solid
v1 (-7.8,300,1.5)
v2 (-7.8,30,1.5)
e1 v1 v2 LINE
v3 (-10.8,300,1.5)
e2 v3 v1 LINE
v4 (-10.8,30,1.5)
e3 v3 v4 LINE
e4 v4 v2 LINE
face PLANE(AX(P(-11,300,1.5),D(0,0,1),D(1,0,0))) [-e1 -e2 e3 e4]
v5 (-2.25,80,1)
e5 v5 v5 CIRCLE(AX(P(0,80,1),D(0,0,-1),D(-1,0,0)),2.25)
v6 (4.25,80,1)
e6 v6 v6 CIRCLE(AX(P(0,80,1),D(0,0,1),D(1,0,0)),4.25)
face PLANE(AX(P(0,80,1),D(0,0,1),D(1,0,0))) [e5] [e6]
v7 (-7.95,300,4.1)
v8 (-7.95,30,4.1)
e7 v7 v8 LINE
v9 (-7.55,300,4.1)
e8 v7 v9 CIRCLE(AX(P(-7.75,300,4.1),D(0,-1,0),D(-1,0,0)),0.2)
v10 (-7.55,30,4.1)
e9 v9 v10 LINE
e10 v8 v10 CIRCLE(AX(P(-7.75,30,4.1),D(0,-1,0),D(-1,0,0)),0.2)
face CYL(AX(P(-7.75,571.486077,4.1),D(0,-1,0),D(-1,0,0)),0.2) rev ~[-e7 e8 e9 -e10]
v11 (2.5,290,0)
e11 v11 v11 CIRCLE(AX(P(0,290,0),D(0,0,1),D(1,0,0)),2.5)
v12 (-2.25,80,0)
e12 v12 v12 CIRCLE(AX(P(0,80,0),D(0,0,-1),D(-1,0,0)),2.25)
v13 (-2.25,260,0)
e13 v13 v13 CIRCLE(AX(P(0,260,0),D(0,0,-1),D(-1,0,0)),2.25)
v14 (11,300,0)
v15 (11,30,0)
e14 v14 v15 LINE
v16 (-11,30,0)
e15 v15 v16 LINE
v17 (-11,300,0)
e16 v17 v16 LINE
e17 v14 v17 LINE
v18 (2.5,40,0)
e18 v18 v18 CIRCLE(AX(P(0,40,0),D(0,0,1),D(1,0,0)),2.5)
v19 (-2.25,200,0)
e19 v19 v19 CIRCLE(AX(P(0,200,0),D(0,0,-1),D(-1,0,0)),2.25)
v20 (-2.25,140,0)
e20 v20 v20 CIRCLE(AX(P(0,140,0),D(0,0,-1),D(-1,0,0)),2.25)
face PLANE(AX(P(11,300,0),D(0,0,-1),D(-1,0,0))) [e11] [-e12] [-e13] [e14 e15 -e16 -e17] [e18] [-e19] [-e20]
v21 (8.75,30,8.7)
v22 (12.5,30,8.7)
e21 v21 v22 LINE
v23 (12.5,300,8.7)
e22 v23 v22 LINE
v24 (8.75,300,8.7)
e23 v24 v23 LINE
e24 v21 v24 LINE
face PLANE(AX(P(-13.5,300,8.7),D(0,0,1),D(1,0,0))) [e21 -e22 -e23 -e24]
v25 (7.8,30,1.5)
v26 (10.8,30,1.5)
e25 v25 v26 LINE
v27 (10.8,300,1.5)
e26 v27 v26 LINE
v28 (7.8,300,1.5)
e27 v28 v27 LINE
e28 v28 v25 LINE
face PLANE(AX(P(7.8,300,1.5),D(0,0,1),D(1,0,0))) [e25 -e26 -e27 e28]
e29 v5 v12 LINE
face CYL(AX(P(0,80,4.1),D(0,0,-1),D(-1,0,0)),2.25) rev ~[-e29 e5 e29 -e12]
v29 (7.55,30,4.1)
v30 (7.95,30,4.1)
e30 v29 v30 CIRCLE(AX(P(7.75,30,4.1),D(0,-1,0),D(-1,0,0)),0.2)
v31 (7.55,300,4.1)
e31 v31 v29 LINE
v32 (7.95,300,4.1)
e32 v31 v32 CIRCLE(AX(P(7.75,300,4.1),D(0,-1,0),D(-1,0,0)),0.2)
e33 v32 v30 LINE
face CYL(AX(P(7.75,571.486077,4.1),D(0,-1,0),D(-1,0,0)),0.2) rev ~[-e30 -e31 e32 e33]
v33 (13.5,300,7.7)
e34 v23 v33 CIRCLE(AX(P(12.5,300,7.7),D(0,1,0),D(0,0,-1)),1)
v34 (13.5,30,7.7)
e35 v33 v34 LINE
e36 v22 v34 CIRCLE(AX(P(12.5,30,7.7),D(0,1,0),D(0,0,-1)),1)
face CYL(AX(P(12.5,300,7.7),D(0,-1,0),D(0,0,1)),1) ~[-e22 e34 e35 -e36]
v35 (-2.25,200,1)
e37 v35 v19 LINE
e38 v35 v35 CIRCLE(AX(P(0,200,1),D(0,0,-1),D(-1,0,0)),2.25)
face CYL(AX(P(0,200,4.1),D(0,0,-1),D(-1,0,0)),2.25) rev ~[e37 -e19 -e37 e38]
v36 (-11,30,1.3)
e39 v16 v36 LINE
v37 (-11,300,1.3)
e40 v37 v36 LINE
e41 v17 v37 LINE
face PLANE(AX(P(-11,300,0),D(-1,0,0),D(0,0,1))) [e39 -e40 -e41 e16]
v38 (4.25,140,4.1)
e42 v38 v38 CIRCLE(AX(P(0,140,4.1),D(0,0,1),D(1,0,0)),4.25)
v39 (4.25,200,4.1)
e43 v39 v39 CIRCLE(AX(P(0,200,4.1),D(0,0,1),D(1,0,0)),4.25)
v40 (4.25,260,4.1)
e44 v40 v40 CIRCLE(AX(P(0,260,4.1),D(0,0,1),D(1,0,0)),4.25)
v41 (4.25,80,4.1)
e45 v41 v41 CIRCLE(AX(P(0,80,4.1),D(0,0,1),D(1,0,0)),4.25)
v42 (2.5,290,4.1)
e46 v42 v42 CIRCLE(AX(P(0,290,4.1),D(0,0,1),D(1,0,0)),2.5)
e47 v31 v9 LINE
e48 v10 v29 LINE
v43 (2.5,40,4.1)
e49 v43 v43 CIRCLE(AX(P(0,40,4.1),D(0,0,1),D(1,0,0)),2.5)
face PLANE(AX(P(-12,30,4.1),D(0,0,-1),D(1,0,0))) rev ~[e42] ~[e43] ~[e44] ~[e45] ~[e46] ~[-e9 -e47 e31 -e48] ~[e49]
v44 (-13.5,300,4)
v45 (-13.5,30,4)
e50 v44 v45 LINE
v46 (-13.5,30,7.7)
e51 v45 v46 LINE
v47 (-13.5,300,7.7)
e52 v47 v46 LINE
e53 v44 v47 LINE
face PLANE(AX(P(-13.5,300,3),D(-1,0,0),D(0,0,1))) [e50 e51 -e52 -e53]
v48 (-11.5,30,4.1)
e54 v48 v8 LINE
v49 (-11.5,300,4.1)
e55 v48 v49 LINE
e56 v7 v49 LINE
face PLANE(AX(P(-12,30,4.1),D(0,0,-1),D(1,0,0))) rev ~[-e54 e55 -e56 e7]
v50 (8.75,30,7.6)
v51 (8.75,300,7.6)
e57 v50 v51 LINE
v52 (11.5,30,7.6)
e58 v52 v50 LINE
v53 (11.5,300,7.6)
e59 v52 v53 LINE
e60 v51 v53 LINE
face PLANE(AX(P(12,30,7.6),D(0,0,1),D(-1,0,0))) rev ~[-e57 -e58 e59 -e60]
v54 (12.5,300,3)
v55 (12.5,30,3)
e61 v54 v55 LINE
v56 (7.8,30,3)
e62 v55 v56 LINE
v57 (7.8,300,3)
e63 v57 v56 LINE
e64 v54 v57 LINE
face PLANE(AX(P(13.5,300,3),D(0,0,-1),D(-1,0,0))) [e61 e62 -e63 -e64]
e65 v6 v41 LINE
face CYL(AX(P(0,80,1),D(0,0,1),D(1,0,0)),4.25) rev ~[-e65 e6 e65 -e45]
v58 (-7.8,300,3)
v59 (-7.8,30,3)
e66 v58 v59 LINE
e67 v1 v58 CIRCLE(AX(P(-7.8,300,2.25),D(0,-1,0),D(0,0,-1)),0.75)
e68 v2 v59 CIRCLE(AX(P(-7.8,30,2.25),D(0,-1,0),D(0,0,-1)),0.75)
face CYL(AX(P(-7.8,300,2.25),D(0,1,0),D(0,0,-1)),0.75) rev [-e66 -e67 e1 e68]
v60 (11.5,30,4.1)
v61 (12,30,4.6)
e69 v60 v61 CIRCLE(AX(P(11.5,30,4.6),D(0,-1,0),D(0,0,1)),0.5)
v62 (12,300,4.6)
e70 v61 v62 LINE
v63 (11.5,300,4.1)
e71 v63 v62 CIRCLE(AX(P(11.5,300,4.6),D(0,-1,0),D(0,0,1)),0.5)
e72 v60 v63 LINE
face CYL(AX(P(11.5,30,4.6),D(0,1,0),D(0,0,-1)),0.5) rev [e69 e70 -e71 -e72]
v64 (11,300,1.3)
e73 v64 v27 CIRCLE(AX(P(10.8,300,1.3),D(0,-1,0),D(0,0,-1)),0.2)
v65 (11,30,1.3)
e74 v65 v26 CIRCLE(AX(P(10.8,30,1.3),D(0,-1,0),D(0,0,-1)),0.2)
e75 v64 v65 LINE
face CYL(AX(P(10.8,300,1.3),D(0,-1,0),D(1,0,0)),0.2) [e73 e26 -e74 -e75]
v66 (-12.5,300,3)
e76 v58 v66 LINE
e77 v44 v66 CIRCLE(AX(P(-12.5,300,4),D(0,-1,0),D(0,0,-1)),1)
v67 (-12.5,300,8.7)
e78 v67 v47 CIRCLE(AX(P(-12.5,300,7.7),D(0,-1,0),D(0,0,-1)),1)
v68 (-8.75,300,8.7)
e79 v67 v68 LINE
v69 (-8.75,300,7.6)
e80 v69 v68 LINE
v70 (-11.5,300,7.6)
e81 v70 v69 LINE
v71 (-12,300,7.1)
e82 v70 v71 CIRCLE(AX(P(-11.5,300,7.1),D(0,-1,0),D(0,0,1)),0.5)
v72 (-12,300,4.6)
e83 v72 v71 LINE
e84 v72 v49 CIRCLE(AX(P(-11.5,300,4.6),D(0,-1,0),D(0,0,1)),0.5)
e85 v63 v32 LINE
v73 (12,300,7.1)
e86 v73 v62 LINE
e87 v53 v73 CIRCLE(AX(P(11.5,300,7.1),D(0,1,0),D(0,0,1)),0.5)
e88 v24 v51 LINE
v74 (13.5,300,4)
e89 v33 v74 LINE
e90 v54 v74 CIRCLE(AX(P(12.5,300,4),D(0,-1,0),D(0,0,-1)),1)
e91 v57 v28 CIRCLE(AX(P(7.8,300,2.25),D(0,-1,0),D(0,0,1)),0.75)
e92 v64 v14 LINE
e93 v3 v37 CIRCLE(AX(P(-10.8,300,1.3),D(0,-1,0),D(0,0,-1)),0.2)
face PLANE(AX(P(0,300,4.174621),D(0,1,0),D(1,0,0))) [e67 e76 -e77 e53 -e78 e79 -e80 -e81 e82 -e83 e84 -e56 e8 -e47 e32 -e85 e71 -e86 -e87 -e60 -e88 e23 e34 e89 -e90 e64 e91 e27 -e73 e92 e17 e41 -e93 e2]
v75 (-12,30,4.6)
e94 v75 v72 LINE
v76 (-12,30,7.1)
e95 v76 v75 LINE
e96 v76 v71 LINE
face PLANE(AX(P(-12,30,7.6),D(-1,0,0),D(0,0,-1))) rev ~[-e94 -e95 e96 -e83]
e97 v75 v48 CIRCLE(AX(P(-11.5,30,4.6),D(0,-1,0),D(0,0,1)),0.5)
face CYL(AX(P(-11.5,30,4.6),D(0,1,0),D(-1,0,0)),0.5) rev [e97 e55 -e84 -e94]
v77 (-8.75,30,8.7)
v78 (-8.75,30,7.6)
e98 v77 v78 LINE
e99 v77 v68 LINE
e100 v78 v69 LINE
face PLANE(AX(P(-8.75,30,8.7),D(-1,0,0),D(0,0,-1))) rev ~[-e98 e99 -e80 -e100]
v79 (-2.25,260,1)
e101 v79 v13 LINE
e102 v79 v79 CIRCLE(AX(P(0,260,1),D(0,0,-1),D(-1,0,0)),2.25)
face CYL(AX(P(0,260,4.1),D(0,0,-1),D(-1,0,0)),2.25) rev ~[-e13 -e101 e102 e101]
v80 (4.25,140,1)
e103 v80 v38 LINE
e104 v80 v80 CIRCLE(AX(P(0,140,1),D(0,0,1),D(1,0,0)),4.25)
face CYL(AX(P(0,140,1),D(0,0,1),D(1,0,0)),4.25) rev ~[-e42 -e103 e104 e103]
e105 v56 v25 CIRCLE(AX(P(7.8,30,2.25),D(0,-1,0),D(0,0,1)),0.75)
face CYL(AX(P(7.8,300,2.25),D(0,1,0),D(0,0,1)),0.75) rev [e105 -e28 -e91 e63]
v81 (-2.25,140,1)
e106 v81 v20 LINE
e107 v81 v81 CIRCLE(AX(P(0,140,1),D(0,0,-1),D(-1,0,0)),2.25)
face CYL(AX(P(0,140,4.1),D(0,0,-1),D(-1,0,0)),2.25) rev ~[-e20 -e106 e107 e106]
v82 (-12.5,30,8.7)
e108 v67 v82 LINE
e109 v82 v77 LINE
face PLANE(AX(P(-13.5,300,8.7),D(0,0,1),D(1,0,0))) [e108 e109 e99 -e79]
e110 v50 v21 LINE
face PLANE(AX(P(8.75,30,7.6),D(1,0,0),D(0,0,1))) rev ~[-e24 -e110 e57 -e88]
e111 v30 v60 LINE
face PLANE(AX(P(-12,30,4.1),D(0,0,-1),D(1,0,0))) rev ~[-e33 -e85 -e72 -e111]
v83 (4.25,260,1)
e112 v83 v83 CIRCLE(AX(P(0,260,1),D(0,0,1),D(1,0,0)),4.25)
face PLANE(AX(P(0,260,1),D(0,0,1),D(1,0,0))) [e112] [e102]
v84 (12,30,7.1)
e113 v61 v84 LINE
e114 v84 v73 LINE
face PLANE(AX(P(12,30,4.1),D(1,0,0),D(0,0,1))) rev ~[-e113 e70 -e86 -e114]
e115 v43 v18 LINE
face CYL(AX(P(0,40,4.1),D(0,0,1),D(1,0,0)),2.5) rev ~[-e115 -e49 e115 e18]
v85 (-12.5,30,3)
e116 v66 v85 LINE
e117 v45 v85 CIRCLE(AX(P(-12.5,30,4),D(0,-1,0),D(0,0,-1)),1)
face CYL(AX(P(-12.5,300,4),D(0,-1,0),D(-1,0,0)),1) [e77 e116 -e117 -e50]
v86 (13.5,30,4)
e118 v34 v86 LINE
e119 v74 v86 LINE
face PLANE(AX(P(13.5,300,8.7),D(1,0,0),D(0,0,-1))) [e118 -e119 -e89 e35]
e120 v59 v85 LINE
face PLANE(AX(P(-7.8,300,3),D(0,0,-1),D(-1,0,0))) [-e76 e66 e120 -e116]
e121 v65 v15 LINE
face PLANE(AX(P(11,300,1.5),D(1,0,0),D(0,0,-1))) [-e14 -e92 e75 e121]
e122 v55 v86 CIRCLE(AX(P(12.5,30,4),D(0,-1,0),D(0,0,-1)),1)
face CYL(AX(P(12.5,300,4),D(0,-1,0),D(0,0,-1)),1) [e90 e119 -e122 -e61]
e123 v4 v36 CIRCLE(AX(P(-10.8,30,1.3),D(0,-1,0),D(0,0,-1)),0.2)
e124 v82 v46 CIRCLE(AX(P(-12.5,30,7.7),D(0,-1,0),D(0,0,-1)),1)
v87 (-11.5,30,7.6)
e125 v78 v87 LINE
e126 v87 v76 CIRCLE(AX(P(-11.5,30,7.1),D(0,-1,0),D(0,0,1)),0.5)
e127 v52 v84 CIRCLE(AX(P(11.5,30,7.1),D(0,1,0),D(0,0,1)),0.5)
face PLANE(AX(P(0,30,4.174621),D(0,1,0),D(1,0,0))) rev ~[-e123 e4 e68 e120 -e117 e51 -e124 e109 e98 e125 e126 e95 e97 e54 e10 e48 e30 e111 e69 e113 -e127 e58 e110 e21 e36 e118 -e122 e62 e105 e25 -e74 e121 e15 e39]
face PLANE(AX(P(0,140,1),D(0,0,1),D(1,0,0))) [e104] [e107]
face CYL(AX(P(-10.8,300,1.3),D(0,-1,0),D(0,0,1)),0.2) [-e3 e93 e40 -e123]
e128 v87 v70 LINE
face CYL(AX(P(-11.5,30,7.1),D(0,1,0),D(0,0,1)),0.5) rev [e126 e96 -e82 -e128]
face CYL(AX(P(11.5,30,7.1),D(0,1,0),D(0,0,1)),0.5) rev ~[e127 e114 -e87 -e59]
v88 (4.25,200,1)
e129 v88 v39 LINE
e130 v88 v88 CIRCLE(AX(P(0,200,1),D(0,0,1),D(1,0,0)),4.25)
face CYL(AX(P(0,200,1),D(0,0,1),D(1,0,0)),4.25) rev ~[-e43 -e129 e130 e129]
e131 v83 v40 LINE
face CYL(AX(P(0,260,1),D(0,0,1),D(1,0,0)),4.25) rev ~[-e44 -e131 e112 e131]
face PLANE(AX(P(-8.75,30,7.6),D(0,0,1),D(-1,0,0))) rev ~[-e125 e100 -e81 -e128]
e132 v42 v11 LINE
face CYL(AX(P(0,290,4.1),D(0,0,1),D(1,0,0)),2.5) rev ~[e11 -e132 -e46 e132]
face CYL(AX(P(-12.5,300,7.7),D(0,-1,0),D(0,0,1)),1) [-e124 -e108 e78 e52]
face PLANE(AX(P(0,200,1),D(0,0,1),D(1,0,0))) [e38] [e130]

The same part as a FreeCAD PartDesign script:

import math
import FreeCAD as App
import Part
import Sketcher

V = App.Vector


def edges_at(feature, points):
    """Names of the edges that pass closest to the given points."""
    edges = feature.Shape.Edges
    near = lambda p: min(range(len(edges)), key=lambda i: edges[i].distToShape(Part.Vertex(*p))[0])
    return sorted({f"Edge{near(p) + 1}" for p in points})

doc = App.newDocument("Part")
body = doc.addObject("PartDesign::Body", "Body")

# Sketch on XZ plane
sketch1 = body.newObject("Sketcher::SketchObject", "Sketch")
sketch1.AttachmentSupport = (doc.getObject("XZ_Plane"), [""])
sketch1.MapMode = "FlatFace"
sketch1.AttachmentOffset = App.Placement(V(0, 0, -300), App.Rotation())
sketch1.addGeometry([
    Part.LineSegment(V(-13.5, 3, 0), V(-13.5, 8.7, 0)),  # 0
    Part.LineSegment(V(-13.5, 8.7, 0), V(13.5, 8.7, 0)),  # 1
    Part.LineSegment(V(13.5, 8.7, 0), V(13.5, 3, 0)),  # 2
    Part.LineSegment(V(13.5, 3, 0), V(7.8, 3, 0)),  # 3
    Part.ArcOfCircle(Part.Circle(V(7.8, 2.2, 0), V(0, 0, 1), 0.8), math.radians(90), math.radians(270)),  # 4
    Part.LineSegment(V(7.8, 1.5, 0), V(11, 1.5, 0)),  # 5
    Part.LineSegment(V(11, 1.5, 0), V(11, 0, 0)),  # 6
    Part.LineSegment(V(11, 0, 0), V(-11, 0, 0)),  # 7
    Part.LineSegment(V(-11, 0, 0), V(-11, 1.5, 0)),  # 8
    Part.LineSegment(V(-11, 1.5, 0), V(-7.8, 1.5, 0)),  # 9
    Part.ArcOfCircle(Part.Circle(V(-7.8, 2.2, 0), V(0, 0, 1), 0.8), math.radians(-90), math.radians(90)),  # 10
    Part.LineSegment(V(-7.8, 3, 0), V(-13.5, 3, 0)),  # 11
], False)
sketch1.addConstraint([
    Sketcher.Constraint("Coincident", 0, 2, 1, 1),
    Sketcher.Constraint("Coincident", 1, 2, 2, 1),
    Sketcher.Constraint("Coincident", 2, 2, 3, 1),
    Sketcher.Constraint("Tangent", 3, 2, 4, 1),
    Sketcher.Constraint("Tangent", 4, 2, 5, 1),
    Sketcher.Constraint("Coincident", 5, 2, 6, 1),
    Sketcher.Constraint("Coincident", 6, 2, 7, 1),
    Sketcher.Constraint("Coincident", 7, 2, 8, 1),
    Sketcher.Constraint("Coincident", 8, 2, 9, 1),
    Sketcher.Constraint("Tangent", 9, 2, 10, 1),
    Sketcher.Constraint("Tangent", 10, 2, 11, 1),
    Sketcher.Constraint("Coincident", 11, 2, 0, 1),
    Sketcher.Constraint("Vertical", 0),
    Sketcher.Constraint("Horizontal", 1),
    Sketcher.Constraint("Vertical", 2),
    Sketcher.Constraint("Horizontal", 3),
    Sketcher.Constraint("Horizontal", 5),
    Sketcher.Constraint("Vertical", 6),
    Sketcher.Constraint("Horizontal", 7),
    Sketcher.Constraint("Vertical", 8),
    Sketcher.Constraint("Horizontal", 9),
    Sketcher.Constraint("Horizontal", 11),
    Sketcher.Constraint("Equal", 4, 10),
    Sketcher.Constraint("Symmetric", 6, 2, 7, 2, -1, 1),
    Sketcher.Constraint("Symmetric", 4, 3, 10, 3, -2),
    Sketcher.Constraint("Equal", 3, 11),
    Sketcher.Constraint("Equal", 11, 0),
    Sketcher.Constraint("DistanceX", 1, 1, 1, 2, 27.0),
    Sketcher.Constraint("DistanceX", 7, 2, 7, 1, 22.0),
    Sketcher.Constraint("Radius", 4, 0.75),
    Sketcher.Constraint("DistanceX", 3, 2, 3, 1, 5.7),
    Sketcher.Constraint("DistanceY", 6, 2, 6, 1, 1.5),
])
pad1 = body.newObject("PartDesign::Pad", "Pad")
pad1.Profile = sketch1
pad1.Length = 270

# Sketch on XZ plane
sketch2 = body.newObject("Sketcher::SketchObject", "Sketch001")
sketch2.AttachmentSupport = (doc.getObject("XZ_Plane"), [""])
sketch2.MapMode = "FlatFace"
sketch2.AttachmentOffset = App.Placement(V(0, 0, -30), App.Rotation())
sketch2.addGeometry([
    Part.LineSegment(V(8.8, 8.7, 0), V(-8.8, 8.7, 0)),  # 0
    Part.LineSegment(V(-8.8, 8.7, 0), V(-8.8, 7.6, 0)),  # 1
    Part.LineSegment(V(-8.8, 7.6, 0), V(-12, 7.6, 0)),  # 2
    Part.LineSegment(V(-12, 7.6, 0), V(-12, 4.1, 0)),  # 3
    Part.LineSegment(V(-12, 4.1, 0), V(12, 4.1, 0)),  # 4
    Part.LineSegment(V(12, 4.1, 0), V(12, 7.6, 0)),  # 5
    Part.LineSegment(V(12, 7.6, 0), V(8.8, 7.6, 0)),  # 6
    Part.LineSegment(V(8.8, 7.6, 0), V(8.8, 8.7, 0)),  # 7
], False)
sketch2.addConstraint([
    Sketcher.Constraint("Coincident", 0, 2, 1, 1),
    Sketcher.Constraint("Coincident", 1, 2, 2, 1),
    Sketcher.Constraint("Coincident", 2, 2, 3, 1),
    Sketcher.Constraint("Coincident", 3, 2, 4, 1),
    Sketcher.Constraint("Coincident", 4, 2, 5, 1),
    Sketcher.Constraint("Coincident", 5, 2, 6, 1),
    Sketcher.Constraint("Coincident", 6, 2, 7, 1),
    Sketcher.Constraint("Coincident", 7, 2, 0, 1),
    Sketcher.Constraint("Horizontal", 0),
    Sketcher.Constraint("Vertical", 1),
    Sketcher.Constraint("Horizontal", 2),
    Sketcher.Constraint("Vertical", 3),
    Sketcher.Constraint("Horizontal", 4),
    Sketcher.Constraint("Vertical", 5),
    Sketcher.Constraint("Horizontal", 6),
    Sketcher.Constraint("Vertical", 7),
    Sketcher.Constraint("Symmetric", 2, 2, 5, 2, -2),
    Sketcher.Constraint("Equal", 2, 6),
    Sketcher.Constraint("DistanceX", 4, 1, 4, 2, 24.0),
    Sketcher.Constraint("DistanceX", 0, 2, 0, 1, 17.5),
    Sketcher.Constraint("DistanceY", 1, 2, 1, 1, 1.1),
    Sketcher.Constraint("DistanceY", 3, 2, 3, 1, 3.5),
    Sketcher.Constraint("DistanceY", -1, 1, 0, 2, 8.7),
])
pocket1 = body.newObject("PartDesign::Pocket", "Pocket")
pocket1.Profile = sketch2
pocket1.Type = "ThroughAll"

# Sketch on XZ plane
sketch3 = body.newObject("Sketcher::SketchObject", "Sketch002")
sketch3.AttachmentSupport = (doc.getObject("XZ_Plane"), [""])
sketch3.MapMode = "FlatFace"
sketch3.AttachmentOffset = App.Placement(V(0, 0, -300), App.Rotation())
sketch3.addGeometry([
    Part.Circle(V(-7.75, 4.1, 0), V(0, 0, 1), 0.2),
    Part.Circle(V(7.75, 4.1, 0), V(0, 0, 1), 0.2),
], False)
sketch3.addConstraint([
    Sketcher.Constraint("Equal", 0, 1),
    Sketcher.Constraint("Symmetric", 0, 3, 1, 3, -2),
    Sketcher.Constraint("Diameter", 0, 0.4),
    Sketcher.Constraint("DistanceY", -1, 1, 0, 3, 4.1),
    Sketcher.Constraint("DistanceX", 0, 3, 1, 3, 15.5),
])
doc.recompute()
hole = body.newObject("PartDesign::Hole", "Hole")
hole.Profile = sketch3
hole.ThreadType = "None"
hole.Diameter = 0.4
hole.DepthType = "ThroughAll"
hole.Reversed = True

# Sketch on XY plane
sketch4 = body.newObject("Sketcher::SketchObject", "Sketch003")
sketch4.AttachmentSupport = (doc.getObject("XY_Plane"), [""])
sketch4.MapMode = "FlatFace"
sketch4.AttachmentOffset = App.Placement(V(0, 0, 4.1), App.Rotation())
sketch4.addGeometry([
    Part.Circle(V(0, 260, 0), V(0, 0, 1), 2.2),  # 0
    Part.Circle(V(0, 200, 0), V(0, 0, 1), 2.2),  # 1
    Part.Circle(V(0, 140, 0), V(0, 0, 1), 2.2),  # 2
    Part.Circle(V(0, 80, 0), V(0, 0, 1), 2.2),  # 3
    Part.Circle(V(0, 20, 0), V(0, 0, 1), 2.2),  # 4
], False)
sketch4.addConstraint([
    Sketcher.Constraint("Equal", 0, 1),
    Sketcher.Constraint("Equal", 1, 2),
    Sketcher.Constraint("Equal", 2, 3),
    Sketcher.Constraint("Equal", 3, 4),
    Sketcher.Constraint("PointOnObject", 0, 3, -2),
    Sketcher.Constraint("PointOnObject", 1, 3, -2),
    Sketcher.Constraint("PointOnObject", 2, 3, -2),
    Sketcher.Constraint("PointOnObject", 3, 3, -2),
    Sketcher.Constraint("PointOnObject", 4, 3, -2),
    Sketcher.Constraint("Diameter", 0, 4.5),
    Sketcher.Constraint("DistanceY", -1, 1, 0, 3, 260.0),
    Sketcher.Constraint("DistanceY", -1, 1, 1, 3, 200.0),
    Sketcher.Constraint("DistanceY", -1, 1, 2, 3, 140.0),
    Sketcher.Constraint("DistanceY", -1, 1, 3, 3, 80.0),
    Sketcher.Constraint("DistanceY", -1, 1, 4, 3, 20.0),
])
doc.recompute()
hole2 = body.newObject("PartDesign::Hole", "Hole001")
hole2.Profile = sketch4
hole2.ThreadType = "None"
hole2.Diameter = 4.5
hole2.DepthType = "Dimension"
hole2.Depth = 4.1
hole2.DrillPoint = "Flat"
hole2.HoleCutType = "Counterbore"
hole2.HoleCutDiameter = 8.5
hole2.HoleCutDepth = 3.1
doc.recompute()

fillet = body.newObject("PartDesign::Fillet", "Fillet")
fillet.Base = (hole2, edges_at(hole2, [(-11, 165, 1.5), (11, 165, 1.5)]))
fillet.Radius = 0.2
doc.recompute()

fillet2 = body.newObject("PartDesign::Fillet", "Fillet001")
fillet2.Base = (fillet, edges_at(fillet, [
    (12, 165, 7.6),
    (12, 165, 4.1),
    (-12, 165, 4.1),
    (-12, 165, 7.6),
]))
fillet2.Radius = 0.5
doc.recompute()

fillet3 = body.newObject("PartDesign::Fillet", "Fillet002")
fillet3.Base = (fillet2, edges_at(fillet2, [
    (13.5, 165, 3),
    (13.5, 165, 8.7),
    (-13.5, 165, 8.7),
    (-13.5, 165, 3),
]))
fillet3.Radius = 1

# Sketch on XY plane
sketch5 = body.newObject("Sketcher::SketchObject", "Sketch004")
sketch5.AttachmentSupport = (doc.getObject("XY_Plane"), [""])
sketch5.MapMode = "FlatFace"
sketch5.AttachmentOffset = App.Placement(V(0, 0, 4.1), App.Rotation())
sketch5.addGeometry(Part.Circle(V(0, 290, 0), V(0, 0, 1), 2.5), False)
sketch5.addConstraint([
    Sketcher.Constraint("PointOnObject", 0, 3, -2),
    Sketcher.Constraint("Diameter", 0, 5.0),
    Sketcher.Constraint("DistanceY", -1, 1, 0, 3, 290.0),
])
pocket2 = body.newObject("PartDesign::Pocket", "Pocket001")
pocket2.Profile = sketch5
pocket2.Type = "UpToFirst"

# Sketch on XY plane
sketch6 = body.newObject("Sketcher::SketchObject", "Sketch005")
sketch6.AttachmentSupport = (doc.getObject("XY_Plane"), [""])
sketch6.MapMode = "FlatFace"
sketch6.AttachmentOffset = App.Placement(V(0, 0, 4.1), App.Rotation())
sketch6.addGeometry(Part.Circle(V(0, 40, 0), V(0, 0, 1), 2.5), False)
sketch6.addConstraint([
    Sketcher.Constraint("PointOnObject", 0, 3, -2),
    Sketcher.Constraint("Diameter", 0, 5.0),
    Sketcher.Constraint("DistanceY", -1, 1, 0, 3, 40.0),
])
pocket3 = body.newObject("PartDesign::Pocket", "Pocket002")
pocket3.Profile = sketch6
pocket3.Type = "UpToFirst"

doc.recompute()
